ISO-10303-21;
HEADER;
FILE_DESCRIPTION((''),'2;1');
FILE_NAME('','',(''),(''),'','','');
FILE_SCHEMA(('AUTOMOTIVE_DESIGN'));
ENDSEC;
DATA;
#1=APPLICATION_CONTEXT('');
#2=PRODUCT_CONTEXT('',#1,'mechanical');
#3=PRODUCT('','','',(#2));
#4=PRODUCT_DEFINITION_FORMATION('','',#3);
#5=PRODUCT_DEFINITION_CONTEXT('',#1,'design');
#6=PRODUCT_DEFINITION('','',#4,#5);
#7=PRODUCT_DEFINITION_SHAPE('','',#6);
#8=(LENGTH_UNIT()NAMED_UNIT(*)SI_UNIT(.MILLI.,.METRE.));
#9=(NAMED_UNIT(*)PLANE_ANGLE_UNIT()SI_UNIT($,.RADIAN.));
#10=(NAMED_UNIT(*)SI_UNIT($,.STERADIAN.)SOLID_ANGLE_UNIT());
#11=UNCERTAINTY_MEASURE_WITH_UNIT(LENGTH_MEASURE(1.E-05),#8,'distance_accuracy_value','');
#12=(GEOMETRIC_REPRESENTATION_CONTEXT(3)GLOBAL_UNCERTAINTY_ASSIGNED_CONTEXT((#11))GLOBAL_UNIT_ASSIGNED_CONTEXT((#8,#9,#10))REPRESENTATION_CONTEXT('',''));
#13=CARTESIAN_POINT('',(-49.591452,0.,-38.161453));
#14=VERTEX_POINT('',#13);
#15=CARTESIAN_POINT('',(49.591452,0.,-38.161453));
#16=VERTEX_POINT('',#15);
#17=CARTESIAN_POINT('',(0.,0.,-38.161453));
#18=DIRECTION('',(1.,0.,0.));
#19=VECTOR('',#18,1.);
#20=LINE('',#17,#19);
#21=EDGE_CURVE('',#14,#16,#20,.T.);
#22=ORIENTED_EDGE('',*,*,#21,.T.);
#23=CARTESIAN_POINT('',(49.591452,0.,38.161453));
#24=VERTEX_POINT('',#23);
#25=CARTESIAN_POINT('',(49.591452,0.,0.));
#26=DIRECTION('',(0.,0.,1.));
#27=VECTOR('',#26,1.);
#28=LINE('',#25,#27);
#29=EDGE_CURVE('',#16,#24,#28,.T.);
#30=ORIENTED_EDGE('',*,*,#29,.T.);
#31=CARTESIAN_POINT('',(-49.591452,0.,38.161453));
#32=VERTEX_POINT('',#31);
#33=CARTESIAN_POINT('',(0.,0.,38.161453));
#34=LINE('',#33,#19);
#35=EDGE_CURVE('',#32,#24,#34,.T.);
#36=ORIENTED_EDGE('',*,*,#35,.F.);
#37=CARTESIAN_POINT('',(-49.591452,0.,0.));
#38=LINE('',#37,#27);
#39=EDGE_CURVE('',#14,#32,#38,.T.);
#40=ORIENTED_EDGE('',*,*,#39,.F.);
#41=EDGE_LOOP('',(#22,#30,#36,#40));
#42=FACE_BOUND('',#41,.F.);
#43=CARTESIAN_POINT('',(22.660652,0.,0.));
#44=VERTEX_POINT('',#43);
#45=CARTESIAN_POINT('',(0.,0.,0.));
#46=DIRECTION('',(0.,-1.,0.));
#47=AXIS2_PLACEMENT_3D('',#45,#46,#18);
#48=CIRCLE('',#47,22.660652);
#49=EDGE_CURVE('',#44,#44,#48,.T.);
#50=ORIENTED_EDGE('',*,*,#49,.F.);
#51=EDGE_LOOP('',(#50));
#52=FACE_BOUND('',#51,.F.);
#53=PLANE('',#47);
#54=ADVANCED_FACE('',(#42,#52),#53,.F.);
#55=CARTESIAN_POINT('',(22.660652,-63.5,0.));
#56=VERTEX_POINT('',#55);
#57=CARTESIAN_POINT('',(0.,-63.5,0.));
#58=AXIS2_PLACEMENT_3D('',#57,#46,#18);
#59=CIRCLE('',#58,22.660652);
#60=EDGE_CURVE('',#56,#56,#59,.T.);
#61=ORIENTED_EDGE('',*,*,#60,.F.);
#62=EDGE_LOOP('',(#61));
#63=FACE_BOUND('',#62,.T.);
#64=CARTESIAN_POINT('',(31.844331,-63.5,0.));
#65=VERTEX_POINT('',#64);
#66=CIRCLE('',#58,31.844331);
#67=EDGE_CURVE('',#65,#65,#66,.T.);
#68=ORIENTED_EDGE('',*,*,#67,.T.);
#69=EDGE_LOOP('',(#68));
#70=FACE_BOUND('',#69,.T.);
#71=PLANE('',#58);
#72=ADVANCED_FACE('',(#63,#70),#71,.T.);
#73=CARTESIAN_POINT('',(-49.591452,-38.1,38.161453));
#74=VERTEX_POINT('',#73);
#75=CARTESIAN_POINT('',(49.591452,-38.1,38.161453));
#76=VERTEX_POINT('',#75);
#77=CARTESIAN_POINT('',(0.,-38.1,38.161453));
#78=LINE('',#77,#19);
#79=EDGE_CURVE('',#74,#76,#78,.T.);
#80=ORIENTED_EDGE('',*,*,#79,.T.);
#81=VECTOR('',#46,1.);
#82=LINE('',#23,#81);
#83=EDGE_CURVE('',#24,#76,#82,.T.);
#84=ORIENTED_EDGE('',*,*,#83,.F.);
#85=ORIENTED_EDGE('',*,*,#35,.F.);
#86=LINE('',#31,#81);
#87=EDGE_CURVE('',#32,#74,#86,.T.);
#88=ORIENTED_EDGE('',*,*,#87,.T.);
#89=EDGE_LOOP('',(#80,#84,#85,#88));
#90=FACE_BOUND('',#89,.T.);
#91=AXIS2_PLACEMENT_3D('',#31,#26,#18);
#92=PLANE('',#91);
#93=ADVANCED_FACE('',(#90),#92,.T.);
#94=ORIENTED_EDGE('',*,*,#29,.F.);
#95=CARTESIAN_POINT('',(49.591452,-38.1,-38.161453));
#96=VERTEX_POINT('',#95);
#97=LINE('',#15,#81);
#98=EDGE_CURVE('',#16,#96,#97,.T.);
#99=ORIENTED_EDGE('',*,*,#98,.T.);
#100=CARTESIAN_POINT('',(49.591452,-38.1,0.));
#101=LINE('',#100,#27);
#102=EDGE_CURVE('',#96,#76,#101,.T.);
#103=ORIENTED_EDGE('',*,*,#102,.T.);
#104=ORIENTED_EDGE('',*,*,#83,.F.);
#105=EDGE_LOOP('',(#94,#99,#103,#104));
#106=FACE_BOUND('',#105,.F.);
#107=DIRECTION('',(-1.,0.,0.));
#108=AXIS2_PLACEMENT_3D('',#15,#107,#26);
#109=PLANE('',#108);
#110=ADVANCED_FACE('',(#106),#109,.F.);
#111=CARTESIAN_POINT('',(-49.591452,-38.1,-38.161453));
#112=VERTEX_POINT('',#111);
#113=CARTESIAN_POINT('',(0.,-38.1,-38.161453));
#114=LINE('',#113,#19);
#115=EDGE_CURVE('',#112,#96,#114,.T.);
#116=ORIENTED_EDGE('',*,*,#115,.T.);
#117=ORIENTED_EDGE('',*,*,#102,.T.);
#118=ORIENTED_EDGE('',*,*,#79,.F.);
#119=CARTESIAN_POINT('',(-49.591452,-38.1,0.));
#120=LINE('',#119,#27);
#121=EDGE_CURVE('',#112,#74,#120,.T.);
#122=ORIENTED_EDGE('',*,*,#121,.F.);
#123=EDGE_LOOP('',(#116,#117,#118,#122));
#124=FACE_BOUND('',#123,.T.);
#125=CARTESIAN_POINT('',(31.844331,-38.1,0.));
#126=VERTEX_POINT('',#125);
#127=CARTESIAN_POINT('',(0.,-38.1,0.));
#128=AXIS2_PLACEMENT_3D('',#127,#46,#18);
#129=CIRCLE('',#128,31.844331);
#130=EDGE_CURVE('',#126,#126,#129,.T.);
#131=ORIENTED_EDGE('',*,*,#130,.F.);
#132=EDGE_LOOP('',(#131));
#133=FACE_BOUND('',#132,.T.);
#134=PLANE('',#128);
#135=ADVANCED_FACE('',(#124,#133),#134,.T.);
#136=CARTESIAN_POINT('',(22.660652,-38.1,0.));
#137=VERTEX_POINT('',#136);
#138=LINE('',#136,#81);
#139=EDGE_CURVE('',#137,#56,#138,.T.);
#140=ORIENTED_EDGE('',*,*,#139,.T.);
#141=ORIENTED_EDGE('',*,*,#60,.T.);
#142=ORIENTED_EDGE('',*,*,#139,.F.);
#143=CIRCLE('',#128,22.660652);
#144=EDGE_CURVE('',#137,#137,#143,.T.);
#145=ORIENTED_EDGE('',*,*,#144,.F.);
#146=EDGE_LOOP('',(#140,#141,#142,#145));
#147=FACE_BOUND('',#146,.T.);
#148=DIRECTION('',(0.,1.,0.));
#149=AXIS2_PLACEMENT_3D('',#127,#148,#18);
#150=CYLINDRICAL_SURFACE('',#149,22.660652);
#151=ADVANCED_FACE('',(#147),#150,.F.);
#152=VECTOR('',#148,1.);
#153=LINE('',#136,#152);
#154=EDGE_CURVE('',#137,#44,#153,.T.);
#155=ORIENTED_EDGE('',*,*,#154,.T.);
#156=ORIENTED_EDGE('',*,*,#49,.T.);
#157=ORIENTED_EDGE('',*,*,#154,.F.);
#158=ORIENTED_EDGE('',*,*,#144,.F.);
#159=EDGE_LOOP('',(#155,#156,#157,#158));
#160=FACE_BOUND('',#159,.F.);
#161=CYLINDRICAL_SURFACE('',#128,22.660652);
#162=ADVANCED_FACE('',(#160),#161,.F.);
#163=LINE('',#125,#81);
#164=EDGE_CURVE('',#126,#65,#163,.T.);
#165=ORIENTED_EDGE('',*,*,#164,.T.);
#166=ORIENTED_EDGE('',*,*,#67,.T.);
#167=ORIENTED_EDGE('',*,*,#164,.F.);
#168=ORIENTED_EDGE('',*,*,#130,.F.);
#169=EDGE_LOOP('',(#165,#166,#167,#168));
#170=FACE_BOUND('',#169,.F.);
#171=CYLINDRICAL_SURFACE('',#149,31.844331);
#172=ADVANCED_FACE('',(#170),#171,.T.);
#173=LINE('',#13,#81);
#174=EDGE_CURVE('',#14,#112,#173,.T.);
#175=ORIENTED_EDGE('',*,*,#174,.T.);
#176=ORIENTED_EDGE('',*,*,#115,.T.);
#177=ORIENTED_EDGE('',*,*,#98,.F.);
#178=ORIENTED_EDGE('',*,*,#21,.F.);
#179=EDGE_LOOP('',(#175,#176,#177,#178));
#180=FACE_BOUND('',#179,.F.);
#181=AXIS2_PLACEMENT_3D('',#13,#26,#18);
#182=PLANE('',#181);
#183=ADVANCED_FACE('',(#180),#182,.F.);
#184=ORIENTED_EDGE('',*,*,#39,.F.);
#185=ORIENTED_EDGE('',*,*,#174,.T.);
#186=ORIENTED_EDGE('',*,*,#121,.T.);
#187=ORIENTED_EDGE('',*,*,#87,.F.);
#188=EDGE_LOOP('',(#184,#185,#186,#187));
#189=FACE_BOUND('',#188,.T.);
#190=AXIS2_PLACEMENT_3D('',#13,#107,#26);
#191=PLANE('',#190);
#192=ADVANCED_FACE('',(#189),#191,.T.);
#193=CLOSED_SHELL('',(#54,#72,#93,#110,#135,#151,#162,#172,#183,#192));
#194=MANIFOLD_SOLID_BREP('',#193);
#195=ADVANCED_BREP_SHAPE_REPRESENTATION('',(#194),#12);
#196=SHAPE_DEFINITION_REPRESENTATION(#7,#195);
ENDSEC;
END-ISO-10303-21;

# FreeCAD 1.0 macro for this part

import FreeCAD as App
import Part
import Sketcher
Q = App.Units.Quantity

doc = App.newDocument("Part")
params = doc.addObject("Spreadsheet::Sheet", "Params")
for row, (alias, value) in enumerate([
    ("pad1_length", "1.5 in"),
    ("pad2_length", "1 in"),
    ("pocket1_length", "3 in"),
], start=1):
    params.set(f"A{row}", alias)
    params.set(f"B{row}", "=" + value)
    params.setAlias(f"B{row}", alias)

body = doc.addObject("PartDesign::Body", "Body")

# Sketch on XZ plane
sketch1 = doc.addObject("Sketcher::SketchObject", "Sketch")
body.addObject(sketch1)
sketch1.AttachmentSupport = (doc.XZ_Plane, [""])
sketch1.MapMode = "FlatFace"
sketch1.addGeometry([
    Part.LineSegment(App.Vector(-50, 38, 0), App.Vector(-50, -38, 0)),
    Part.LineSegment(App.Vector(-50, -38, 0), App.Vector(50, -38, 0)),
    Part.LineSegment(App.Vector(50, -38, 0), App.Vector(50, 38, 0)),
    Part.LineSegment(App.Vector(50, 38, 0), App.Vector(-50, 38, 0)),
], False)
sketch1.addConstraint([
    Sketcher.Constraint("Coincident", 0, 2, 1, 1),
    Sketcher.Constraint("Coincident", 1, 2, 2, 1),
    Sketcher.Constraint("Coincident", 2, 2, 3, 1),
    Sketcher.Constraint("Coincident", 3, 2, 0, 1),
    Sketcher.Constraint("Vertical", 0),
    Sketcher.Constraint("Horizontal", 1),
    Sketcher.Constraint("Vertical", 2),
    Sketcher.Constraint("Horizontal", 3),
    Sketcher.Constraint("Symmetric", 0, 2, 2, 2, -1, 1),
    Sketcher.Constraint("DistanceX", 1, 1, 1, 2, Q("99.182904 mm")),
    Sketcher.Constraint("DistanceY", 0, 2, 0, 1, Q("76.322906 mm")),
])
pad1 = doc.addObject("PartDesign::Pad", "Pad")
body.addObject(pad1)
pad1.Profile = sketch1
pad1.setExpression("Length", "Params.pad1_length")

# Sketch on XZ plane
sketch2 = doc.addObject("Sketcher::SketchObject", "Sketch001")
body.addObject(sketch2)
sketch2.AttachmentSupport = (doc.XZ_Plane, [""])
sketch2.MapMode = "FlatFace"
sketch2.AttachmentOffset = App.Placement(App.Vector(0, 0, 1.5 * 25.4), App.Rotation())
sketch2.addGeometry([
    Part.Circle(App.Vector(0, 0, 0), App.Vector(0, 0, 1), 32),
    Part.Circle(App.Vector(0, 0, 0), App.Vector(0, 0, 1), 23),
], False)
sketch2.addConstraint([
    Sketcher.Constraint("Coincident", 0, 3, -1, 1),
    Sketcher.Constraint("Coincident", 1, 3, -1, 1),
    Sketcher.Constraint("Diameter", 0, Q("63.688662 mm")),
    Sketcher.Constraint("Diameter", 1, Q("45.321304 mm")),
])
pad2 = doc.addObject("PartDesign::Pad", "Pad001")
body.addObject(pad2)
pad2.Profile = sketch2
pad2.setExpression("Length", "Params.pad2_length")

# Sketch on XZ plane
sketch3 = doc.addObject("Sketcher::SketchObject", "Sketch002")
body.addObject(sketch3)
sketch3.AttachmentSupport = (doc.XZ_Plane, [""])
sketch3.MapMode = "FlatFace"
sketch3.AttachmentOffset = App.Placement(App.Vector(0, 0, 1.5 * 25.4), App.Rotation())
sketch3.addGeometry(Part.Circle(App.Vector(0, 0, 0), App.Vector(0, 0, 1), 23), False)
sketch3.addConstraint([
    Sketcher.Constraint("Coincident", 0, 3, -1, 1),
    Sketcher.Constraint("Diameter", 0, Q("45.321304 mm")),
])
pocket1 = doc.addObject("PartDesign::Pocket", "Pocket")
body.addObject(pocket1)
pocket1.Profile = sketch3
pocket1.setExpression("Length", "Params.pocket1_length")

doc.recompute()
